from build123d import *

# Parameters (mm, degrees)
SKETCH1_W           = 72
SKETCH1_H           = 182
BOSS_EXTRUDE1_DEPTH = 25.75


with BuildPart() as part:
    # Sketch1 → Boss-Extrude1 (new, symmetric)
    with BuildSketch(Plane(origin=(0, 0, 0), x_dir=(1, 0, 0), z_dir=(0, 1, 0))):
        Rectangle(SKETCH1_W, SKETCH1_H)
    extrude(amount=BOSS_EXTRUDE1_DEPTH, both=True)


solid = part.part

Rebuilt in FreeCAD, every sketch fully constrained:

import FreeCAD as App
import Part
import Sketcher
from FreeCAD import Vector

doc = App.newDocument("Part")
body = doc.addObject("PartDesign::Body", "Body")

# Sketch on XZ plane
sketch1 = body.newObject("Sketcher::SketchObject", "Sketch")
sketch1.AttachmentSupport = (doc.getObject("XZ_Plane"), [""])
sketch1.MapMode = "FlatFace"
sketch1.addGeometry(Part.LineSegment(Vector(-36, -91, 0), Vector(-36, 91, 0)), False)
sketch1.addGeometry(Part.LineSegment(Vector(-36, 91, 0), Vector(36, 91, 0)), False)
sketch1.addGeometry(Part.LineSegment(Vector(36, 91, 0), Vector(36, -91, 0)), False)
sketch1.addGeometry(Part.LineSegment(Vector(36, -91, 0), Vector(-36, -91, 0)), False)
sketch1.addConstraint(Sketcher.Constraint("Coincident", 0, 2, 1, 1))
sketch1.addConstraint(Sketcher.Constraint("Coincident", 1, 2, 2, 1))
sketch1.addConstraint(Sketcher.Constraint("Coincident", 2, 2, 3, 1))
sketch1.addConstraint(Sketcher.Constraint("Coincident", 3, 2, 0, 1))
sketch1.addConstraint(Sketcher.Constraint("Vertical", 0))
sketch1.addConstraint(Sketcher.Constraint("Horizontal", 1))
sketch1.addConstraint(Sketcher.Constraint("Vertical", 2))
sketch1.addConstraint(Sketcher.Constraint("Horizontal", 3))
sketch1.addConstraint(Sketcher.Constraint("Symmetric", 0, 2, 2, 2, -1, 1))
sketch1.addConstraint(Sketcher.Constraint("DistanceX", 1, 1, 1, 2, 72.0))
sketch1.addConstraint(Sketcher.Constraint("DistanceY", 0, 1, 0, 2, 182.0))
pad1 = body.newObject("PartDesign::Pad", "Pad")
pad1.Profile = sketch1
pad1.Length = 51.5
pad1.Midplane = True

doc.recompute()
